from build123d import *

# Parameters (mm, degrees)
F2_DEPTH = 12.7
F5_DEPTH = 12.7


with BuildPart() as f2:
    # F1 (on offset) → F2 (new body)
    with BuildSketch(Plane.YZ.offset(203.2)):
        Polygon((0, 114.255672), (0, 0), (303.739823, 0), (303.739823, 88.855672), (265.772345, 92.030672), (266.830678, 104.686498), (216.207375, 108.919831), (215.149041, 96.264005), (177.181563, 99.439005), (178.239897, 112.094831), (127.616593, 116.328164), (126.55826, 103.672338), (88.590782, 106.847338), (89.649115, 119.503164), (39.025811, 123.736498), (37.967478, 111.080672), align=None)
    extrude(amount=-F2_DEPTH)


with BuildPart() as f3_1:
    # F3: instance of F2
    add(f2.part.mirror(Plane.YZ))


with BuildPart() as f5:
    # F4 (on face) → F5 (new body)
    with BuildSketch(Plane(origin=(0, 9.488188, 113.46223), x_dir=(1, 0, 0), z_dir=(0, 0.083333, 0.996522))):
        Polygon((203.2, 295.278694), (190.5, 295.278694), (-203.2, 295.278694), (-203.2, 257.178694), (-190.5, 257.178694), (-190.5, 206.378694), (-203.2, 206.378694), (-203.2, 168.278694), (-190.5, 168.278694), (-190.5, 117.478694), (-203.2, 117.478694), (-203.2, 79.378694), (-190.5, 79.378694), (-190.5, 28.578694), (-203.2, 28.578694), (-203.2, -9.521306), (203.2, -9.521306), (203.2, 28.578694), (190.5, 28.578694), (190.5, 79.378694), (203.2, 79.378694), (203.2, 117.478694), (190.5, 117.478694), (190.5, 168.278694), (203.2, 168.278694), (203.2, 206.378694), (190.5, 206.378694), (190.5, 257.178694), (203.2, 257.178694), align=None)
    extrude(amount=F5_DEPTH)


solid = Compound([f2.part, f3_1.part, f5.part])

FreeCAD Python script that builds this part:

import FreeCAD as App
import Part
import Sketcher
from FreeCAD import Vector
Q = App.Units.Quantity

doc = App.newDocument("Part")
body = doc.addObject("PartDesign::Body", "Body")

# Sketch on YZ plane
sketch1 = doc.addObject("Sketcher::SketchObject", "Sketch")
body.addObject(sketch1)
sketch1.AttachmentSupport = (doc.YZ_Plane, [""])
sketch1.MapMode = "FlatFace"
sketch1.AttachmentOffset = App.Placement(Vector(0, 0, 8 * 25.4), App.Rotation())
sketch1.addGeometry([
    Part.LineSegment(Vector(0, 114, 0), Vector(0, 0, 0)),  # 0
    Part.LineSegment(Vector(0, 0, 0), Vector(304, 0, 0)),  # 1
    Part.LineSegment(Vector(304, 0, 0), Vector(304, 89, 0)),  # 2
    Part.LineSegment(Vector(304, 89, 0), Vector(266, 92, 0)),  # 3
    Part.LineSegment(Vector(266, 92, 0), Vector(267, 105, 0)),  # 4
    Part.LineSegment(Vector(267, 105, 0), Vector(216, 109, 0)),  # 5
    Part.LineSegment(Vector(216, 109, 0), Vector(215, 96, 0)),  # 6
    Part.LineSegment(Vector(215, 96, 0), Vector(177, 99, 0)),  # 7
    Part.LineSegment(Vector(177, 99, 0), Vector(178, 112, 0)),  # 8
    Part.LineSegment(Vector(178, 112, 0), Vector(128, 116, 0)),  # 9
    Part.LineSegment(Vector(128, 116, 0), Vector(127, 104, 0)),  # 10
    Part.LineSegment(Vector(127, 104, 0), Vector(89, 107, 0)),  # 11
    Part.LineSegment(Vector(89, 107, 0), Vector(90, 120, 0)),  # 12
    Part.LineSegment(Vector(90, 120, 0), Vector(39, 124, 0)),  # 13
    Part.LineSegment(Vector(39, 124, 0), Vector(38, 111, 0)),  # 14
    Part.LineSegment(Vector(38, 111, 0), Vector(0, 114, 0)),  # 15
], False)
sketch1.addConstraint([
    Sketcher.Constraint("Coincident", 0, 2, 1, 1),
    Sketcher.Constraint("Coincident", 1, 2, 2, 1),
    Sketcher.Constraint("Coincident", 2, 2, 3, 1),
    Sketcher.Constraint("Coincident", 3, 2, 4, 1),
    Sketcher.Constraint("Coincident", 4, 2, 5, 1),
    Sketcher.Constraint("Coincident", 5, 2, 6, 1),
    Sketcher.Constraint("Coincident", 6, 2, 7, 1),
    Sketcher.Constraint("Coincident", 7, 2, 8, 1),
    Sketcher.Constraint("Coincident", 8, 2, 9, 1),
    Sketcher.Constraint("Coincident", 9, 2, 10, 1),
    Sketcher.Constraint("Coincident", 10, 2, 11, 1),
    Sketcher.Constraint("Coincident", 11, 2, 12, 1),
    Sketcher.Constraint("Coincident", 12, 2, 13, 1),
    Sketcher.Constraint("Coincident", 13, 2, 14, 1),
    Sketcher.Constraint("Coincident", 14, 2, 15, 1),
    Sketcher.Constraint("Coincident", 15, 2, 0, 1),
    Sketcher.Constraint("Vertical", 0),
    Sketcher.Constraint("Horizontal", 1),
    Sketcher.Constraint("Vertical", 2),
    Sketcher.Constraint("Coincident", 0, 2, -1, 1),
    Sketcher.Constraint("Perpendicular", 3, 4),
    Sketcher.Constraint("Perpendicular", 4, 5),
    Sketcher.Constraint("Perpendicular", 5, 6),
    Sketcher.Constraint("Perpendicular", 6, 7),
    Sketcher.Constraint("Perpendicular", 7, 8),
    Sketcher.Constraint("Perpendicular", 8, 9),
    Sketcher.Constraint("Perpendicular", 9, 10),
    Sketcher.Constraint("Perpendicular", 10, 11),
    Sketcher.Constraint("Perpendicular", 11, 12),
    Sketcher.Constraint("Perpendicular", 12, 13),
    Sketcher.Constraint("Perpendicular", 13, 14),
    Sketcher.Constraint("Perpendicular", 14, 15),
    Sketcher.Constraint("Equal", 4, 6),
    Sketcher.Constraint("Equal", 3, 7),
    Sketcher.Constraint("Equal", 6, 8),
    Sketcher.Constraint("Equal", 5, 9),
    Sketcher.Constraint("Equal", 8, 10),
    Sketcher.Constraint("Equal", 7, 11),
    Sketcher.Constraint("Equal", 10, 12),
    Sketcher.Constraint("Equal", 9, 13),
    Sketcher.Constraint("Equal", 12, 14),
    Sketcher.Constraint("Equal", 11, 15),
    Sketcher.Constraint("Distance", 5, Q("2 in")),
    Sketcher.Constraint("Distance", 3, Q("1.5 in")),
    Sketcher.Constraint("Distance", 4, Q("0.5 in")),
    Sketcher.Constraint("DistanceY", 2, 2, 3, 2, Q("0.125 in")),
    Sketcher.Constraint("DistanceY", 2, 1, 2, 2, Q("88.855672 mm")),
])
pad1 = doc.addObject("PartDesign::Pad", "Pad")
body.addObject(pad1)
pad1.Profile = sketch1
pad1.Length = Q("0.5 in")
pad1.Reversed = True
body2 = doc.addObject("PartDesign::Body", "Body001")
doc.recompute()

mirroring = doc.addObject("Part::Mirroring", "Mirroring")
mirroring.Source = body
mirroring.Base = Vector(0, 0, 0)
mirroring.Normal = Vector(1, 0, 0)
body2.BaseFeature = mirroring
doc.recompute()
body3 = doc.addObject("PartDesign::Body", "Body002")

# Sketch on an angled plane
sketch2 = doc.addObject("Sketcher::SketchObject", "Sketch001")
body3.addObject(sketch2)
sketch2.Placement = App.Placement(Vector(0, 9.488188, 113.46223), App.Rotation(Vector(1, 0, 0), Vector(0, 0.996521758, -0.08333298), Vector(0, 0.08333298, 0.996521758), "ZXY"))
sketch2.addGeometry([
    Part.LineSegment(Vector(203, 295, 0), Vector(-203, 295, 0)),  # 0
    Part.LineSegment(Vector(-203, 295, 0), Vector(-203, 257, 0)),  # 1
    Part.LineSegment(Vector(-203, 257, 0), Vector(-190, 257, 0)),  # 2
    Part.LineSegment(Vector(-190, 257, 0), Vector(-190, 206, 0)),  # 3
    Part.LineSegment(Vector(-190, 206, 0), Vector(-203, 206, 0)),  # 4
    Part.LineSegment(Vector(-203, 206, 0), Vector(-203, 168, 0)),  # 5
    Part.LineSegment(Vector(-203, 168, 0), Vector(-190, 168, 0)),  # 6
    Part.LineSegment(Vector(-190, 168, 0), Vector(-190, 117, 0)),  # 7
    Part.LineSegment(Vector(-190, 117, 0), Vector(-203, 117, 0)),  # 8
    Part.LineSegment(Vector(-203, 117, 0), Vector(-203, 79, 0)),  # 9
    Part.LineSegment(Vector(-203, 79, 0), Vector(-190, 79, 0)),  # 10
    Part.LineSegment(Vector(-190, 79, 0), Vector(-190, 29, 0)),  # 11
    Part.LineSegment(Vector(-190, 29, 0), Vector(-203, 29, 0)),  # 12
    Part.LineSegment(Vector(-203, 29, 0), Vector(-203, -10, 0)),  # 13
    Part.LineSegment(Vector(-203, -10, 0), Vector(203, -10, 0)),  # 14
    Part.LineSegment(Vector(203, -10, 0), Vector(203, 29, 0)),  # 15
    Part.LineSegment(Vector(203, 29, 0), Vector(190, 29, 0)),  # 16
    Part.LineSegment(Vector(190, 29, 0), Vector(190, 79, 0)),  # 17
    Part.LineSegment(Vector(190, 79, 0), Vector(203, 79, 0)),  # 18
    Part.LineSegment(Vector(203, 79, 0), Vector(203, 117, 0)),  # 19
    Part.LineSegment(Vector(203, 117, 0), Vector(190, 117, 0)),  # 20
    Part.LineSegment(Vector(190, 117, 0), Vector(190, 168, 0)),  # 21
    Part.LineSegment(Vector(190, 168, 0), Vector(203, 168, 0)),  # 22
    Part.LineSegment(Vector(203, 168, 0), Vector(203, 206, 0)),  # 23
    Part.LineSegment(Vector(203, 206, 0), Vector(190, 206, 0)),  # 24
    Part.LineSegment(Vector(190, 206, 0), Vector(190, 257, 0)),  # 25
    Part.LineSegment(Vector(190, 257, 0), Vector(203, 257, 0)),  # 26
    Part.LineSegment(Vector(203, 257, 0), Vector(203, 295, 0)),  # 27
], False)
sketch2.addConstraint([
    Sketcher.Constraint("Coincident", 0, 2, 1, 1),
    Sketcher.Constraint("Coincident", 1, 2, 2, 1),
    Sketcher.Constraint("Coincident", 2, 2, 3, 1),
    Sketcher.Constraint("Coincident", 3, 2, 4, 1),
    Sketcher.Constraint("Coincident", 4, 2, 5, 1),
    Sketcher.Constraint("Coincident", 5, 2, 6, 1),
    Sketcher.Constraint("Coincident", 6, 2, 7, 1),
    Sketcher.Constraint("Coincident", 7, 2, 8, 1),
    Sketcher.Constraint("Coincident", 8, 2, 9, 1),
    Sketcher.Constraint("Coincident", 9, 2, 10, 1),
    Sketcher.Constraint("Coincident", 10, 2, 11, 1),
    Sketcher.Constraint("Coincident", 11, 2, 12, 1),
    Sketcher.Constraint("Coincident", 12, 2, 13, 1),
    Sketcher.Constraint("Coincident", 13, 2, 14, 1),
    Sketcher.Constraint("Coincident", 14, 2, 15, 1),
    Sketcher.Constraint("Coincident", 15, 2, 16, 1),
    Sketcher.Constraint("Coincident", 16, 2, 17, 1),
    Sketcher.Constraint("Coincident", 17, 2, 18, 1),
    Sketcher.Constraint("Coincident", 18, 2, 19, 1),
    Sketcher.Constraint("Coincident", 19, 2, 20, 1),
    Sketcher.Constraint("Coincident", 20, 2, 21, 1),
    Sketcher.Constraint("Coincident", 21, 2, 22, 1),
    Sketcher.Constraint("Coincident", 22, 2, 23, 1),
    Sketcher.Constraint("Coincident", 23, 2, 24, 1),
    Sketcher.Constraint("Coincident", 24, 2, 25, 1),
    Sketcher.Constraint("Coincident", 25, 2, 26, 1),
    Sketcher.Constraint("Coincident", 26, 2, 27, 1),
    Sketcher.Constraint("Coincident", 27, 2, 0, 1),
    Sketcher.Constraint("Horizontal", 0),
    Sketcher.Constraint("Vertical", 1),
    Sketcher.Constraint("Horizontal", 2),
    Sketcher.Constraint("Vertical", 3),
    Sketcher.Constraint("Horizontal", 4),
    Sketcher.Constraint("Vertical", 5),
    Sketcher.Constraint("Horizontal", 6),
    Sketcher.Constraint("Vertical", 7),
    Sketcher.Constraint("Horizontal", 8),
    Sketcher.Constraint("Vertical", 9),
    Sketcher.Constraint("Horizontal", 10),
    Sketcher.Constraint("Vertical", 11),
    Sketcher.Constraint("Horizontal", 12),
    Sketcher.Constraint("Vertical", 13),
    Sketcher.Constraint("Horizontal", 14),
    Sketcher.Constraint("Vertical", 15),
    Sketcher.Constraint("Horizontal", 16),
    Sketcher.Constraint("Vertical", 17),
    Sketcher.Constraint("Horizontal", 18),
    Sketcher.Constraint("Vertical", 19),
    Sketcher.Constraint("Horizontal", 20),
    Sketcher.Constraint("Vertical", 21),
    Sketcher.Constraint("Horizontal", 22),
    Sketcher.Constraint("Vertical", 23),
    Sketcher.Constraint("Horizontal", 24),
    Sketcher.Constraint("Vertical", 25),
    Sketcher.Constraint("Horizontal", 26),
    Sketcher.Constraint("Vertical", 27),
    Sketcher.Constraint("Symmetric", 12, 2, 15, 2, -2),
    Sketcher.Constraint("Symmetric", 10, 2, 17, 2, -2),
    Sketcher.Constraint("Symmetric", 8, 2, 19, 2, -2),
    Sketcher.Constraint("Symmetric", 6, 2, 21, 2, -2),
    Sketcher.Constraint("Symmetric", 4, 2, 23, 2, -2),
    Sketcher.Constraint("Symmetric", 2, 2, 25, 2, -2),
    Sketcher.Constraint("Vertical", 1, 2, 4, 2),
    Sketcher.Constraint("Vertical", 3, 2, 6, 2),
    Sketcher.Constraint("Vertical", 5, 2, 8, 2),
    Sketcher.Constraint("Vertical", 7, 2, 10, 2),
    Sketcher.Constraint("Vertical", 9, 2, 12, 2),
    Sketcher.Constraint("Vertical", 23, 2, 26, 2),
    Sketcher.Constraint("Equal", 1, 5),
    Sketcher.Constraint("Equal", 3, 7),
    Sketcher.Constraint("Equal", 5, 9),
    Sketcher.Constraint("Equal", 7, 11),
    Sketcher.Constraint("Equal", 9, 13),
    Sketcher.Constraint("DistanceX", 0, 2, 0, 1, Q("16 in")),
    Sketcher.Constraint("DistanceY", 3, 2, 3, 1, Q("2 in")),
    Sketcher.Constraint("DistanceX", 2, 1, 2, 2, Q("0.5 in")),
    Sketcher.Constraint("DistanceY", 1, 2, 1, 1, Q("1.5 in")),
    Sketcher.Constraint("DistanceY", -1, 1, 0, 2, Q("295.278694 mm")),
])
pad2 = doc.addObject("PartDesign::Pad", "Pad001")
body3.addObject(pad2)
pad2.Profile = sketch2
pad2.Length = Q("0.5 in")
mirroring.Visibility = False

doc.recompute()
